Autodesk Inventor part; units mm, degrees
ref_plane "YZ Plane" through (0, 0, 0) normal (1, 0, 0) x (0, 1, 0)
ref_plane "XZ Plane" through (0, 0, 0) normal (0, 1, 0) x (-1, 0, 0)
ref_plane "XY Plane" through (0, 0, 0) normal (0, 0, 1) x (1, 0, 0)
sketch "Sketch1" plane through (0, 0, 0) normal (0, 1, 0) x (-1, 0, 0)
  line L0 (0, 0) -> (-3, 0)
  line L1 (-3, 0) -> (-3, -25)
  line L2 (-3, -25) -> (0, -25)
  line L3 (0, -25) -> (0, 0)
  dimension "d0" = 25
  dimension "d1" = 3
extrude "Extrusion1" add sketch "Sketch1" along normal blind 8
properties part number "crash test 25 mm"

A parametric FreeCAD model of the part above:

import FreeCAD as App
import Part
import Sketcher
from FreeCAD import Vector

doc = App.newDocument("Part")
params = doc.addObject("Spreadsheet::Sheet", "Params")
for row, (alias, value) in enumerate([
    ("sketch1_width", "3 mm"),
    ("sketch1_height", "25 mm"),
    ("pad1_length", "8 mm"),
], start=1):
    params.set(f"A{row}", alias)
    params.set(f"B{row}", "=" + value)
    params.setAlias(f"B{row}", alias)

body = doc.addObject("PartDesign::Body", "Body")

sketch1 = body.newObject("Sketcher::SketchObject", "Sketch")
sketch1.AttachmentSupport = (doc.getObject("XZ_Plane"), [""])
sketch1.MapMode = "FlatFace"
sketch1.addGeometry([
    Part.LineSegment(Vector(0, -25, 0), Vector(0, 0, 0)),
    Part.LineSegment(Vector(0, 0, 0), Vector(3, 0, 0)),
    Part.LineSegment(Vector(3, 0, 0), Vector(3, -25, 0)),
    Part.LineSegment(Vector(3, -25, 0), Vector(0, -25, 0)),
], False)
sketch1.addConstraint([
    Sketcher.Constraint("Coincident", 0, 2, 1, 1),
    Sketcher.Constraint("Coincident", 1, 2, 2, 1),
    Sketcher.Constraint("Coincident", 2, 2, 3, 1),
    Sketcher.Constraint("Coincident", 3, 2, 0, 1),
    Sketcher.Constraint("Vertical", 0),
    Sketcher.Constraint("Horizontal", 1),
    Sketcher.Constraint("Vertical", 2),
    Sketcher.Constraint("Horizontal", 3),
    Sketcher.Constraint("Coincident", 0, 2, -1, 1),
    Sketcher.Constraint("DistanceX", 1, 1, 1, 2, 3.0),
    Sketcher.Constraint("DistanceY", 0, 1, 0, 2, 25.0),
])
sketch1.setExpression("Constraints[9]", "Params.sketch1_width")
sketch1.setExpression("Constraints[10]", "Params.sketch1_height")
pad1 = body.newObject("PartDesign::Pad", "Pad")
pad1.Profile = sketch1
pad1.setExpression("Length", "Params.pad1_length")
pad1.Reversed = True

doc.recompute()
